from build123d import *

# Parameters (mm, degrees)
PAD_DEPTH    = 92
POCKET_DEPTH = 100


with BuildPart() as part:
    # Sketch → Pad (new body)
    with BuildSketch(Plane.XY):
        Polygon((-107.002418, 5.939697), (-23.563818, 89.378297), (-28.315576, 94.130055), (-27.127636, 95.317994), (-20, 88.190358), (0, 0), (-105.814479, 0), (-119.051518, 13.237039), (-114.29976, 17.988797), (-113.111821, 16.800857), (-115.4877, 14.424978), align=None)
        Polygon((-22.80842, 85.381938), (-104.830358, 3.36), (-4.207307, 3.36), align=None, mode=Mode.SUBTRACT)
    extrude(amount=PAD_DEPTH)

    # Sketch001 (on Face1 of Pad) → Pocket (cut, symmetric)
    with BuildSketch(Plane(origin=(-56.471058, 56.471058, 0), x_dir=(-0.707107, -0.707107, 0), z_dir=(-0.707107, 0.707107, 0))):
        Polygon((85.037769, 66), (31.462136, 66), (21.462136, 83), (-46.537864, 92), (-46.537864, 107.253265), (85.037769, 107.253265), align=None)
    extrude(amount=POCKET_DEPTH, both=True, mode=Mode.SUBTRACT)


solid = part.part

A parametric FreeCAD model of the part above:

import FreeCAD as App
import Part
import Sketcher
from FreeCAD import Vector
Q = App.Units.Quantity

doc = App.newDocument("Part")
body = doc.addObject("PartDesign::Body", "Body")

sketch1 = doc.addObject("Sketcher::SketchObject", "Sketch")
body.addObject(sketch1)
sketch1.AttachmentSupport = (doc.XY_Plane, [""])
sketch1.MapMode = "FlatFace"
sketch1.addGeometry([
    Part.LineSegment(Vector(-23.6, 89.4, 0), Vector(-107, 5.9, 0)),
    Part.LineSegment(Vector(-107, 5.9, 0), Vector(-115.5, 14.4, 0)),
    Part.LineSegment(Vector(-115.5, 14.4, 0), Vector(-113.1, 16.8, 0)),
    Part.LineSegment(Vector(-113.1, 16.8, 0), Vector(-114.3, 18, 0)),
    Part.LineSegment(Vector(-114.3, 18, 0), Vector(-119.1, 13.2, 0)),
    Part.LineSegment(Vector(-119.1, 13.2, 0), Vector(-105.8, 0, 0)),
    Part.LineSegment(Vector(-105.8, 0, 0), Vector(0, 0, 0)),
    Part.LineSegment(Vector(0, 0, 0), Vector(-20, 88.2, 0)),
    Part.LineSegment(Vector(-20, 88.2, 0), Vector(-27.1, 95.3, 0)),
    Part.LineSegment(Vector(-27.1, 95.3, 0), Vector(-28.3, 94.1, 0)),
    Part.LineSegment(Vector(-28.3, 94.1, 0), Vector(-23.6, 89.4, 0)),
    Part.LineSegment(Vector(-22.8, 85.4, 0), Vector(-4.2, 3.4, 0)),
    Part.LineSegment(Vector(-4.2, 3.4, 0), Vector(-104.8, 3.4, 0)),
    Part.LineSegment(Vector(-104.8, 3.4, 0), Vector(-22.8, 85.4, 0)),
], False)
sketch1.addConstraint([
    Sketcher.Constraint("Coincident", 0, 2, 1, 1),
    Sketcher.Constraint("Coincident", 1, 2, 2, 1),
    Sketcher.Constraint("Coincident", 2, 2, 3, 1),
    Sketcher.Constraint("Coincident", 3, 2, 4, 1),
    Sketcher.Constraint("Coincident", 4, 2, 5, 1),
    Sketcher.Constraint("Coincident", 5, 2, 6, 1),
    Sketcher.Constraint("Coincident", 6, 2, 7, 1),
    Sketcher.Constraint("Coincident", 7, 2, 8, 1),
    Sketcher.Constraint("Coincident", 8, 2, 9, 1),
    Sketcher.Constraint("Coincident", 9, 2, 10, 1),
    Sketcher.Constraint("Coincident", 10, 2, 0, 1),
    Sketcher.Constraint("Coincident", 11, 2, 12, 1),
    Sketcher.Constraint("Coincident", 12, 2, 13, 1),
    Sketcher.Constraint("Coincident", 13, 2, 11, 1),
    Sketcher.Constraint("Horizontal", 6),
    Sketcher.Constraint("Horizontal", 12),
    Sketcher.Constraint("Coincident", 6, 2, -1, 1),
    Sketcher.Constraint("Perpendicular", 0, 1),
    Sketcher.Constraint("Perpendicular", 1, 2),
    Sketcher.Constraint("Perpendicular", 2, 3),
    Sketcher.Constraint("Perpendicular", 3, 4),
    Sketcher.Constraint("Perpendicular", 4, 5),
    Sketcher.Constraint("Parallel", 5, 8),
    Sketcher.Constraint("Perpendicular", 8, 9),
    Sketcher.Constraint("Perpendicular", 9, 10),
    Sketcher.Constraint("Parallel", 7, 11),
    Sketcher.Constraint("Perpendicular", 10, 13),
    Sketcher.Constraint("Equal", 3, 9),
    Sketcher.Constraint("Equal", 4, 10),
    Sketcher.Constraint("Angle", 0, Q("-135 deg")),
    Sketcher.Constraint("Distance", 0, 118.0),
    Sketcher.Constraint("Distance", 1, 12.0),
    Sketcher.Constraint("DistanceX", 7, 2, -1, 1, 20.0),
    Sketcher.Constraint("Distance", 2, 3.36),
    Sketcher.Constraint("Distance", 3, 1.68),
    Sketcher.Constraint("Distance", 4, 6.720001),
    Sketcher.Constraint("Distance", 5, 18.72),
    Sketcher.Constraint("Distance", 8, 10.079999),
    Sketcher.Constraint("DistanceY", -1, 1, 11, 2, 3.36),
    Sketcher.Constraint("DistanceX", 12, 2, 12, 1, 100.623051),
    Sketcher.Constraint("DistanceX", 12, 2, -1, 1, 104.830358),
])
pad1 = doc.addObject("PartDesign::Pad", "Pad")
body.addObject(pad1)
pad1.Profile = sketch1
pad1.Length = 92

sketch2 = doc.addObject("Sketcher::SketchObject", "Sketch001")
body.addObject(sketch2)
sketch2.Placement = App.Placement(Vector(-56.471058, 56.471058, 0), App.Rotation(Vector(-0.707106781, -0.707106781, 0), Vector(0, 0, 0.999999999), Vector(-0.707106781, 0.707106781, 0), "ZXY"))
sketch2.addGeometry([
    Part.LineSegment(Vector(31, 66, 0), Vector(85, 66, 0)),
    Part.LineSegment(Vector(85, 66, 0), Vector(85, 107, 0)),
    Part.LineSegment(Vector(85, 107, 0), Vector(-47, 107, 0)),
    Part.LineSegment(Vector(-47, 107, 0), Vector(-47, 92, 0)),
    Part.LineSegment(Vector(-47, 92, 0), Vector(21, 83, 0)),
    Part.LineSegment(Vector(21, 83, 0), Vector(31, 66, 0)),
], False)
sketch2.addConstraint([
    Sketcher.Constraint("Coincident", 0, 2, 1, 1),
    Sketcher.Constraint("Coincident", 1, 2, 2, 1),
    Sketcher.Constraint("Coincident", 2, 2, 3, 1),
    Sketcher.Constraint("Coincident", 3, 2, 4, 1),
    Sketcher.Constraint("Coincident", 4, 2, 5, 1),
    Sketcher.Constraint("Coincident", 5, 2, 0, 1),
    Sketcher.Constraint("Horizontal", 0),
    Sketcher.Constraint("Vertical", 1),
    Sketcher.Constraint("Horizontal", 2),
    Sketcher.Constraint("Vertical", 3),
    Sketcher.Constraint("DistanceY", -1, 1, 0, 2, 66.0),
    Sketcher.Constraint("DistanceY", -1, 1, 3, 2, 92.0),
    Sketcher.Constraint("DistanceY", -1, 1, 4, 2, 83.0),
    Sketcher.Constraint("DistanceX", 3, 2, 4, 2, 68.0),
    Sketcher.Constraint("DistanceX", 4, 2, 5, 2, 10.0),
    Sketcher.Constraint("DistanceX", 0, 1, 0, 2, 53.575633),
    Sketcher.Constraint("DistanceY", 1, 1, 1, 2, 41.253265),
    Sketcher.Constraint("DistanceX", -1, 1, 0, 2, 85.037769),
])
pocket1 = doc.addObject("PartDesign::Pocket", "Pocket")
body.addObject(pocket1)
pocket1.Profile = sketch2
pocket1.Length = 200
pocket1.Midplane = True

doc.recompute()
